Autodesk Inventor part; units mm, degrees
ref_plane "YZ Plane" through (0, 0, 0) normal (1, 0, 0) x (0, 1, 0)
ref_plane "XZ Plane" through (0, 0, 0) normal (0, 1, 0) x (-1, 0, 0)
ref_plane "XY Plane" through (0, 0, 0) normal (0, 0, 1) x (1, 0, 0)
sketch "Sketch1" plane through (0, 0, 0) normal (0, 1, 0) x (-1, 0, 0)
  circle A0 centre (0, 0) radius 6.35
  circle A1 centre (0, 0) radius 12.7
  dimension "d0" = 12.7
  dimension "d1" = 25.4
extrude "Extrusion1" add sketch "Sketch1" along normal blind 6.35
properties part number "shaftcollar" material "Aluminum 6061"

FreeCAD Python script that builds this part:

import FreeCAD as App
import Part
import Sketcher

V = App.Vector
Q = App.Units.Quantity

doc = App.newDocument("Part")
body = doc.addObject("PartDesign::Body", "Body")

sketch1 = body.newObject("Sketcher::SketchObject", "Sketch")
sketch1.AttachmentSupport = (doc.getObject("XZ_Plane"), [""])
sketch1.MapMode = "FlatFace"
sketch1.addGeometry([
    Part.Circle(V(0, 0, 0), V(0, 0, 1), 13),
    Part.Circle(V(0, 0, 0), V(0, 0, 1), 6),
], False)
sketch1.addConstraint([
    Sketcher.Constraint("Coincident", 0, 3, -1, 1),
    Sketcher.Constraint("Coincident", 1, 3, -1, 1),
    Sketcher.Constraint("Diameter", 0, Q("1 in")),
    Sketcher.Constraint("Diameter", 1, Q("0.5 in")),
])
pad1 = body.newObject("PartDesign::Pad", "Pad")
pad1.Profile = sketch1
pad1.Length = Q("0.25 in")
pad1.Reversed = True

doc.recompute()
